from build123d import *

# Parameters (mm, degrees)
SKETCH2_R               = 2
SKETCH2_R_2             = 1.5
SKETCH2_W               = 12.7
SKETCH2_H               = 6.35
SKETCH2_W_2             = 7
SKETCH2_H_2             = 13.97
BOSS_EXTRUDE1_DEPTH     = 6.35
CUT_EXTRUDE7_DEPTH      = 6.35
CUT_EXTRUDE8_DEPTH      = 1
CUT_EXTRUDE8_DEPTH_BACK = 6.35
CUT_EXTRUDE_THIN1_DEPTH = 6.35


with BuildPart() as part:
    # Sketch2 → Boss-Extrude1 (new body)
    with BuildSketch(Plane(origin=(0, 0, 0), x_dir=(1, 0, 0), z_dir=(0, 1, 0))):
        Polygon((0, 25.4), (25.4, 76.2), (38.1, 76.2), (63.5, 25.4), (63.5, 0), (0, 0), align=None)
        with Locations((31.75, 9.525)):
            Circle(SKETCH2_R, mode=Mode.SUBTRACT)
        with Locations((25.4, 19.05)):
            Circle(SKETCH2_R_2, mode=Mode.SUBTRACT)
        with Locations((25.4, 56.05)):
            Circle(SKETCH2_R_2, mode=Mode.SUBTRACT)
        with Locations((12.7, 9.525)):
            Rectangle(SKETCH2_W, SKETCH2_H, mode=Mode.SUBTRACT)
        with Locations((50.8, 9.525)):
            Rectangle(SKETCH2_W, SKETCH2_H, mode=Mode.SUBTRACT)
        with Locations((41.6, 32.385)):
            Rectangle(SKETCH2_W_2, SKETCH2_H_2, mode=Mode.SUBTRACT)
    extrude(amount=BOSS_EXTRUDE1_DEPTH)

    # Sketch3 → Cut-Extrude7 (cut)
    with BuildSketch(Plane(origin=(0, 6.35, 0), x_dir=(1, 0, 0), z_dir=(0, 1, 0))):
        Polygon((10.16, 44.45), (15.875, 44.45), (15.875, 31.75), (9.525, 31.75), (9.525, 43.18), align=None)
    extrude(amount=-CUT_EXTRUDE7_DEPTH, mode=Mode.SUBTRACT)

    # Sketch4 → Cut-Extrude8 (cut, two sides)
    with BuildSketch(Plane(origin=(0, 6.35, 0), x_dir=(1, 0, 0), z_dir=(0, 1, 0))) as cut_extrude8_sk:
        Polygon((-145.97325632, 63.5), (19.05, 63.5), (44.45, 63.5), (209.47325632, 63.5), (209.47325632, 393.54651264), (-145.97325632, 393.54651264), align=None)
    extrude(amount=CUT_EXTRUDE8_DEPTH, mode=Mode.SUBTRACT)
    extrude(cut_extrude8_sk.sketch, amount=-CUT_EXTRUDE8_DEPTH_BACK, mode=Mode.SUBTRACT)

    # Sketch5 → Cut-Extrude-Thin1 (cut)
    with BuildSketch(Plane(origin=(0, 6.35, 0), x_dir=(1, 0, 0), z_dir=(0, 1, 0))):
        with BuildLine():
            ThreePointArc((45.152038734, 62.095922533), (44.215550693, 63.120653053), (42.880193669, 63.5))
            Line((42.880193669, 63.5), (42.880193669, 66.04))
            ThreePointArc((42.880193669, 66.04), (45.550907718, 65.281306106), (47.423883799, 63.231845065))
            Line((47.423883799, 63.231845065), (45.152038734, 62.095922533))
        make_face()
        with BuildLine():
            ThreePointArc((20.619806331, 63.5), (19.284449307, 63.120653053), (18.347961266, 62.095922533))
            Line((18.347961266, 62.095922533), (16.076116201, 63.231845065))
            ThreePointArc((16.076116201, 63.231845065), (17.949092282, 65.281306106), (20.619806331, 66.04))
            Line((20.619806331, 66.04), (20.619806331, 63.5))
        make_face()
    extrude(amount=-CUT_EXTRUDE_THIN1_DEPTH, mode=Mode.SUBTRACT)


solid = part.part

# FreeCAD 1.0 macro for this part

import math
import FreeCAD as App
import Part
import Sketcher
Q = App.Units.Quantity

doc = App.newDocument("Part")
body = doc.addObject("PartDesign::Body", "Body")

sketch1 = body.newObject("Sketcher::SketchObject", "Sketch")
sketch1.AttachmentSupport = (doc.getObject("XZ_Plane"), [""])
sketch1.MapMode = "FlatFace"
sketch1.addGeometry([
    Part.LineSegment(App.Vector(25.4, -76.2, 0), App.Vector(0, -25.4, 0)),
    Part.LineSegment(App.Vector(0, -25.4, 0), App.Vector(0, 0, 0)),
    Part.LineSegment(App.Vector(0, 0, 0), App.Vector(63.5, 0, 0)),
    Part.LineSegment(App.Vector(63.5, 0, 0), App.Vector(63.5, -25.4, 0)),
    Part.LineSegment(App.Vector(63.5, -25.4, 0), App.Vector(38.1, -76.2, 0)),
    Part.LineSegment(App.Vector(38.1, -76.2, 0), App.Vector(25.4, -76.2, 0)),
    Part.LineSegment(App.Vector(44.45, -6.35, 0), App.Vector(44.45, -12.7, 0)),
    Part.LineSegment(App.Vector(44.45, -12.7, 0), App.Vector(57.15, -12.7, 0)),
    Part.LineSegment(App.Vector(57.15, -12.7, 0), App.Vector(57.15, -6.35, 0)),
    Part.LineSegment(App.Vector(57.15, -6.35, 0), App.Vector(44.45, -6.35, 0)),
    Part.Circle(App.Vector(31.75, -9.525, 0), App.Vector(0, 0, 1), 2),
    Part.Circle(App.Vector(25.4, -19.05, 0), App.Vector(0, 0, 1), 1.5),
    Part.LineSegment(App.Vector(6.35, -6.35, 0), App.Vector(6.35, -12.7, 0)),
    Part.LineSegment(App.Vector(6.35, -12.7, 0), App.Vector(19.05, -12.7, 0)),
    Part.LineSegment(App.Vector(19.05, -12.7, 0), App.Vector(19.05, -6.35, 0)),
    Part.LineSegment(App.Vector(19.05, -6.35, 0), App.Vector(6.35, -6.35, 0)),
    Part.LineSegment(App.Vector(38.1, -25.4, 0), App.Vector(38.1, -39.37, 0)),
    Part.LineSegment(App.Vector(38.1, -39.37, 0), App.Vector(45.1, -39.37, 0)),
    Part.LineSegment(App.Vector(45.1, -39.37, 0), App.Vector(45.1, -25.4, 0)),
    Part.LineSegment(App.Vector(45.1, -25.4, 0), App.Vector(38.1, -25.4, 0)),
    Part.Circle(App.Vector(25.4, -56.05, 0), App.Vector(0, 0, 1), 1.5),
], False)
sketch1.addConstraint([
    Sketcher.Constraint("Coincident", 0, 2, 1, 1),
    Sketcher.Constraint("Coincident", 1, 2, 2, 1),
    Sketcher.Constraint("Coincident", 2, 2, 3, 1),
    Sketcher.Constraint("Coincident", 3, 2, 4, 1),
    Sketcher.Constraint("Coincident", 4, 2, 5, 1),
    Sketcher.Constraint("Coincident", 5, 2, 0, 1),
    Sketcher.Constraint("Coincident", 6, 2, 7, 1),
    Sketcher.Constraint("Coincident", 7, 2, 8, 1),
    Sketcher.Constraint("Coincident", 8, 2, 9, 1),
    Sketcher.Constraint("Coincident", 9, 2, 6, 1),
    Sketcher.Constraint("Coincident", 12, 2, 13, 1),
    Sketcher.Constraint("Coincident", 13, 2, 14, 1),
    Sketcher.Constraint("Coincident", 14, 2, 15, 1),
    Sketcher.Constraint("Coincident", 15, 2, 12, 1),
    Sketcher.Constraint("Coincident", 16, 2, 17, 1),
    Sketcher.Constraint("Coincident", 17, 2, 18, 1),
    Sketcher.Constraint("Coincident", 18, 2, 19, 1),
    Sketcher.Constraint("Coincident", 19, 2, 16, 1),
    Sketcher.Constraint("Vertical", 1),
    Sketcher.Constraint("Horizontal", 2),
    Sketcher.Constraint("Vertical", 3),
    Sketcher.Constraint("Horizontal", 5),
    Sketcher.Constraint("Vertical", 6),
    Sketcher.Constraint("Horizontal", 7),
    Sketcher.Constraint("Vertical", 8),
    Sketcher.Constraint("Horizontal", 9),
    Sketcher.Constraint("Vertical", 12),
    Sketcher.Constraint("Horizontal", 13),
    Sketcher.Constraint("Vertical", 14),
    Sketcher.Constraint("Horizontal", 15),
    Sketcher.Constraint("Vertical", 16),
    Sketcher.Constraint("Horizontal", 17),
    Sketcher.Constraint("Vertical", 18),
    Sketcher.Constraint("Horizontal", 19),
    Sketcher.Constraint("Coincident", 1, 2, -1, 1),
    Sketcher.Constraint("Equal", 11, 20),
    Sketcher.Constraint("Horizontal", 0, 2, 3, 2),
    Sketcher.Constraint("Horizontal", 7, 2, 12, 2),
    Sketcher.Constraint("Horizontal", 9, 2, 14, 2),
    Sketcher.Constraint("Horizontal", 3, 2, 18, 2),
    Sketcher.Constraint("Vertical", 11, 3, 20, 3),
    Sketcher.Constraint("Vertical", 20, 3, 5, 2),
    Sketcher.Constraint("Vertical", 4, 2, 16, 2),
    Sketcher.Constraint("Equal", 5, 7),
    Sketcher.Constraint("Equal", 9, 13),
    Sketcher.Constraint("Equal", 0, 4),
    Sketcher.Constraint("DistanceY", 1, 1, 1, 2, Q("1 in")),
    Sketcher.Constraint("DistanceX", 2, 1, 2, 2, Q("2.5 in")),
    Sketcher.Constraint("DistanceX", 5, 2, 5, 1, Q("0.5 in")),
    Sketcher.Constraint("DistanceY", 4, 2, -1, 1, Q("3 in")),
    Sketcher.Constraint("DistanceX", 10, 3, 7, 2, Q("1 in")),
    Sketcher.Constraint("DistanceX", 12, 2, 10, 3, Q("1 in")),
    Sketcher.Constraint("DistanceY", 6, 2, 6, 1, Q("0.25 in")),
    Sketcher.Constraint("DistanceY", 16, 2, 16, 1, Q("0.55 in")),
    Sketcher.Constraint("DistanceY", 6, 2, -1, 1, Q("0.5 in")),
    Sketcher.Constraint("DistanceY", 11, 3, 14, 2, Q("0.5 in")),
    Sketcher.Constraint("Diameter", 10, Q("4 mm")),
    Sketcher.Constraint("Diameter", 11, Q("3 mm")),
    Sketcher.Constraint("DistanceX", -1, 1, 10, 3, Q("1.25 in")),
    Sketcher.Constraint("DistanceY", 10, 3, -1, 1, Q("0.375 in")),
    Sketcher.Constraint("DistanceX", 17, 1, 17, 2, Q("7 mm")),
    Sketcher.Constraint("DistanceY", 20, 3, -1, 1, Q("56.05 mm")),
])
pad1 = body.newObject("PartDesign::Pad", "Pad")
pad1.Profile = sketch1
pad1.Length = Q("0.25 in")
pad1.Reversed = True

sketch2 = body.newObject("Sketcher::SketchObject", "Sketch001")
sketch2.AttachmentSupport = (doc.getObject("XZ_Plane"), [""])
sketch2.MapMode = "FlatFace"
sketch2.AttachmentOffset = App.Placement(App.Vector(0, 0, -0.25 * 25.4), App.Rotation())
sketch2.addGeometry([
    Part.LineSegment(App.Vector(15.875, -44.45, 0), App.Vector(10.16, -44.45, 0)),
    Part.LineSegment(App.Vector(10.16, -44.45, 0), App.Vector(9.525, -43.18, 0)),
    Part.LineSegment(App.Vector(9.525, -43.18, 0), App.Vector(9.525, -31.75, 0)),
    Part.LineSegment(App.Vector(9.525, -31.75, 0), App.Vector(15.875, -31.75, 0)),
    Part.LineSegment(App.Vector(15.875, -31.75, 0), App.Vector(15.875, -44.45, 0)),
], False)
sketch2.addConstraint([
    Sketcher.Constraint("Coincident", 0, 2, 1, 1),
    Sketcher.Constraint("Coincident", 1, 2, 2, 1),
    Sketcher.Constraint("Coincident", 2, 2, 3, 1),
    Sketcher.Constraint("Coincident", 3, 2, 4, 1),
    Sketcher.Constraint("Coincident", 4, 2, 0, 1),
    Sketcher.Constraint("Horizontal", 0),
    Sketcher.Constraint("Vertical", 2),
    Sketcher.Constraint("Horizontal", 3),
    Sketcher.Constraint("Vertical", 4),
    Sketcher.Constraint("DistanceY", 4, 2, 4, 1, Q("0.5 in")),
    Sketcher.Constraint("DistanceX", 3, 1, 3, 2, Q("0.25 in")),
    Sketcher.Constraint("DistanceY", 2, 1, 2, 2, Q("0.45 in")),
    Sketcher.Constraint("DistanceX", -1, 1, 0, 2, Q("0.4 in")),
    Sketcher.Constraint("DistanceY", 1, 2, -1, 1, Q("1.7 in")),
    Sketcher.Constraint("DistanceX", 0, 2, 0, 1, Q("0.225 in")),
])
pocket1 = body.newObject("PartDesign::Pocket", "Pocket")
pocket1.Profile = sketch2
pocket1.Length = Q("0.25 in")
pocket1.Reversed = True

sketch3 = body.newObject("Sketcher::SketchObject", "Sketch002")
sketch3.AttachmentSupport = (doc.getObject("XZ_Plane"), [""])
sketch3.MapMode = "FlatFace"
sketch3.AttachmentOffset = App.Placement(App.Vector(0, 0, -0.25 * 25.4), App.Rotation())
sketch3.addGeometry([
    Part.LineSegment(App.Vector(-145.973256, -63.5, 0), App.Vector(209.473256, -63.5, 0)),
    Part.LineSegment(App.Vector(209.473256, -63.5, 0), App.Vector(209.473256, -393.546513, 0)),
    Part.LineSegment(App.Vector(209.473256, -393.546513, 0), App.Vector(-145.973256, -393.546513, 0)),
    Part.LineSegment(App.Vector(-145.973256, -393.546513, 0), App.Vector(-145.973256, -63.5, 0)),
], False)
sketch3.addConstraint([
    Sketcher.Constraint("Coincident", 0, 2, 1, 1),
    Sketcher.Constraint("Coincident", 1, 2, 2, 1),
    Sketcher.Constraint("Coincident", 2, 2, 3, 1),
    Sketcher.Constraint("Coincident", 3, 2, 0, 1),
    Sketcher.Constraint("Horizontal", 0),
    Sketcher.Constraint("Vertical", 1),
    Sketcher.Constraint("Horizontal", 2),
    Sketcher.Constraint("Vertical", 3),
    Sketcher.Constraint("DistanceY", 0, 2, -1, 1, Q("2.5 in")),
    Sketcher.Constraint("DistanceX", 0, 1, 0, 2, Q("355.446513 mm")),
    Sketcher.Constraint("DistanceY", 1, 2, 1, 1, Q("330.046513 mm")),
    Sketcher.Constraint("DistanceX", -1, 1, 0, 2, Q("209.473256 mm")),
])
pocket2 = body.newObject("PartDesign::Pocket", "Pocket001")
pocket2.Profile = sketch3
pocket2.Type = "ThroughAll"
pocket2.Midplane = True

sketch4 = body.newObject("Sketcher::SketchObject", "Sketch003")
sketch4.AttachmentSupport = (doc.getObject("XZ_Plane"), [""])
sketch4.MapMode = "FlatFace"
sketch4.AttachmentOffset = App.Placement(App.Vector(0, 0, -0.25 * 25.4), App.Rotation())
sketch4.addGeometry([
    Part.ArcOfCircle(Part.Circle(App.Vector(42.880194, -60.96, 0), App.Vector(0, 0, 1), 2.54), math.radians(-90), math.radians(-26.565051)),
    Part.LineSegment(App.Vector(45.152039, -62.095923, 0), App.Vector(47.423884, -63.231845, 0)),
    Part.ArcOfCircle(Part.Circle(App.Vector(42.880194, -60.96, 0), App.Vector(0, 0, 1), 5.08), math.radians(-90), math.radians(-26.565051)),
    Part.LineSegment(App.Vector(42.880194, -66.04, 0), App.Vector(42.880194, -63.5, 0)),
    Part.ArcOfCircle(Part.Circle(App.Vector(20.619806, -60.96, 0), App.Vector(0, 0, 1), 2.54), math.radians(-153.434949), math.radians(-90)),
    Part.LineSegment(App.Vector(20.619806, -63.5, 0), App.Vector(20.619806, -66.04, 0)),
    Part.ArcOfCircle(Part.Circle(App.Vector(20.619806, -60.96, 0), App.Vector(0, 0, 1), 5.08), math.radians(-153.434949), math.radians(-90)),
    Part.LineSegment(App.Vector(16.076116, -63.231845, 0), App.Vector(18.347961, -62.095923, 0)),
], False)
sketch4.addConstraint([
    Sketcher.Constraint("Coincident", 0, 2, 1, 1),
    Sketcher.Constraint("Coincident", 1, 2, 2, 2),
    Sketcher.Constraint("Coincident", 2, 1, 3, 1),
    Sketcher.Constraint("Coincident", 3, 2, 0, 1),
    Sketcher.Constraint("Coincident", 4, 2, 5, 1),
    Sketcher.Constraint("Coincident", 5, 2, 6, 2),
    Sketcher.Constraint("Coincident", 6, 1, 7, 1),
    Sketcher.Constraint("Coincident", 7, 2, 4, 1),
    Sketcher.Constraint("Vertical", 3),
    Sketcher.Constraint("Vertical", 5),
    Sketcher.Constraint("Coincident", 2, 3, 0, 3),
    Sketcher.Constraint("Coincident", 6, 3, 4, 3),
    Sketcher.Constraint("Equal", 0, 4),
    Sketcher.Constraint("Equal", 2, 6),
    Sketcher.Constraint("Horizontal", 2, 3, 4, 3),
    Sketcher.Constraint("Horizontal", 1, 2, 6, 1),
    Sketcher.Constraint("Horizontal", 0, 2, 7, 2),
    Sketcher.Constraint("Vertical", 0, 3, 2, 1),
    Sketcher.Constraint("Vertical", 6, 3, 4, 2),
    Sketcher.Constraint("Radius", 0, Q("0.1 in")),
    Sketcher.Constraint("Radius", 2, Q("0.2 in")),
    Sketcher.Constraint("DistanceY", 0, 3, -1, 1, Q("2.4 in")),
    Sketcher.Constraint("DistanceX", -1, 1, 0, 2, Q("45.152039 mm")),
    Sketcher.Constraint("DistanceX", -1, 1, 7, 2, Q("18.347961 mm")),
    Sketcher.Constraint("DistanceX", 2, 3, 1, 2, Q("4.54369 mm")),
    Sketcher.Constraint("DistanceX", -1, 1, 0, 3, Q("42.880194 mm")),
])
pocket3 = body.newObject("PartDesign::Pocket", "Pocket002")
pocket3.Profile = sketch4
pocket3.Length = Q("0.25 in")
pocket3.Reversed = True

doc.recompute()
